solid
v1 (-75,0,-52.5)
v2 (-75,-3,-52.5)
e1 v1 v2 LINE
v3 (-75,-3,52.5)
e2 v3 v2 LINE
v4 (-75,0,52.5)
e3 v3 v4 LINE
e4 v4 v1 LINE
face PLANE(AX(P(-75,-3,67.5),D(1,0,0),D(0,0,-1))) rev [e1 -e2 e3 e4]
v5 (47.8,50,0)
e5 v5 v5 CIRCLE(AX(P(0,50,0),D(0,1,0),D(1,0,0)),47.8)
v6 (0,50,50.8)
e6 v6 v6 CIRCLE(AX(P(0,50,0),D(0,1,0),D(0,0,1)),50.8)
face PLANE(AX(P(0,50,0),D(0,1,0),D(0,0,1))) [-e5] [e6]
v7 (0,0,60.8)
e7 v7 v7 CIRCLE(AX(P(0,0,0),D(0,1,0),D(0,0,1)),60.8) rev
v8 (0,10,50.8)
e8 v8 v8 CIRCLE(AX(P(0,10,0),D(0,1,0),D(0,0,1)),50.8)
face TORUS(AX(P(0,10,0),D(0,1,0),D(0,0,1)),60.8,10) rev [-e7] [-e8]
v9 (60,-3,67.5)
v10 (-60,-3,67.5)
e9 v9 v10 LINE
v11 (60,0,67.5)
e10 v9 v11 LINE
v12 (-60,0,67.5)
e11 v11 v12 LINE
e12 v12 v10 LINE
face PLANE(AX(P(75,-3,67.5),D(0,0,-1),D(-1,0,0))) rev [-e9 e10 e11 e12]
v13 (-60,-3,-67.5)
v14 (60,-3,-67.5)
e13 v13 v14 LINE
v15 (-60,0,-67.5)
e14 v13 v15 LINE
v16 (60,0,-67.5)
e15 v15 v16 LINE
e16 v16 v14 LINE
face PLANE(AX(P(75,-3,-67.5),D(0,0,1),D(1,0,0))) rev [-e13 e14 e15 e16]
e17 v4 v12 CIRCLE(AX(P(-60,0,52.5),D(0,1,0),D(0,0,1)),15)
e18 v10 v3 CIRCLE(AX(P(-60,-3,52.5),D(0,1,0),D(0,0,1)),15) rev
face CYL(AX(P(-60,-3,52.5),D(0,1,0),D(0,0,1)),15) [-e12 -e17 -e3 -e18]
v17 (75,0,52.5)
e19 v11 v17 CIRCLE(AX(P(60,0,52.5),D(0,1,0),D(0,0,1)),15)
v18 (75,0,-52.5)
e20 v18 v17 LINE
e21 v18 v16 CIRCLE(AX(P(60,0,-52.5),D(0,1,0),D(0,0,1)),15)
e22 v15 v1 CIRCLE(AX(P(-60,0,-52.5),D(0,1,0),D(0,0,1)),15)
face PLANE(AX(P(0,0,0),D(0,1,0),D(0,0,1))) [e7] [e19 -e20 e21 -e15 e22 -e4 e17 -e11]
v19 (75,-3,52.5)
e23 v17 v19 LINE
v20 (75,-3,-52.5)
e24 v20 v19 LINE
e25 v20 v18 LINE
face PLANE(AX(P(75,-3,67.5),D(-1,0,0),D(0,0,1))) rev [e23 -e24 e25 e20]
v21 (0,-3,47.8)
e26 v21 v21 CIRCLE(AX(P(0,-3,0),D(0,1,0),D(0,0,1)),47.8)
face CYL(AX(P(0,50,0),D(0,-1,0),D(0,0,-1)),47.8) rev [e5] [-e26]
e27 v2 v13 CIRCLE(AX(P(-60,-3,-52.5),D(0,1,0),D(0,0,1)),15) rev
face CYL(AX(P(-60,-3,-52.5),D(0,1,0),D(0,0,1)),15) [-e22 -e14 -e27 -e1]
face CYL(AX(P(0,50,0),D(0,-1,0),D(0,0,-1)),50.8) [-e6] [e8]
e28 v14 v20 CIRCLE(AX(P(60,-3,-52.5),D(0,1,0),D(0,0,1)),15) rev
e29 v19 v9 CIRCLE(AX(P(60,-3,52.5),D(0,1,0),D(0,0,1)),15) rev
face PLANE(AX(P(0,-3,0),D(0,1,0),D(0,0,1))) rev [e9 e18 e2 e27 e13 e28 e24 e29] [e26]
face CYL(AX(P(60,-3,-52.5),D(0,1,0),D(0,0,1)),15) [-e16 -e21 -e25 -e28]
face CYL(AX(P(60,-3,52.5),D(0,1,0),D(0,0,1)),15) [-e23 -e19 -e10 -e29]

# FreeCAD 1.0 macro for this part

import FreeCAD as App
import Part
import Sketcher
from FreeCAD import Vector
Q = App.Units.Quantity


def edges_at(feature, points):
    """Names of the edges that pass closest to the given points."""
    edges = feature.Shape.Edges
    near = lambda p: min(range(len(edges)), key=lambda i: edges[i].distToShape(Part.Vertex(*p))[0])
    return sorted({f"Edge{near(p) + 1}" for p in points})

doc = App.newDocument("Part")
body = doc.addObject("PartDesign::Body", "Body")

sketch1 = body.newObject("Sketcher::SketchObject", "Sketch")
sketch1.AttachmentSupport = (doc.getObject("XZ_Plane"), [""])
sketch1.MapMode = "FlatFace"
sketch1.addGeometry([
    Part.Circle(Vector(0, 0, 0), Vector(0, 0, 1), 51),
    Part.Circle(Vector(0, 0, 0), Vector(0, 0, 1), 48),
], False)
sketch1.addConstraint([
    Sketcher.Constraint("Coincident", 0, 3, -1, 1),
    Sketcher.Constraint("Coincident", 1, 3, -1, 1),
    Sketcher.Constraint("Diameter", 0, Q("101.6 mm")),
    Sketcher.Constraint("Diameter", 1, Q("95.6 mm")),
])
pad1 = body.newObject("PartDesign::Pad", "Pad")
pad1.Profile = sketch1
pad1.Length = 50
pad1.Reversed = True

sketch2 = body.newObject("Sketcher::SketchObject", "Sketch001")
sketch2.AttachmentSupport = (doc.getObject("XZ_Plane"), [""])
sketch2.MapMode = "FlatFace"
sketch2.addGeometry([
    Part.LineSegment(Vector(-75, 68, 0), Vector(-75, -68, 0)),
    Part.LineSegment(Vector(-75, -68, 0), Vector(75, -68, 0)),
    Part.LineSegment(Vector(75, -68, 0), Vector(75, 68, 0)),
    Part.LineSegment(Vector(75, 68, 0), Vector(-75, 68, 0)),
], False)
sketch2.addConstraint([
    Sketcher.Constraint("Coincident", 0, 2, 1, 1),
    Sketcher.Constraint("Coincident", 1, 2, 2, 1),
    Sketcher.Constraint("Coincident", 2, 2, 3, 1),
    Sketcher.Constraint("Coincident", 3, 2, 0, 1),
    Sketcher.Constraint("Vertical", 0),
    Sketcher.Constraint("Horizontal", 1),
    Sketcher.Constraint("Vertical", 2),
    Sketcher.Constraint("Horizontal", 3),
    Sketcher.Constraint("Symmetric", 0, 2, 2, 2, -1, 1),
    Sketcher.Constraint("DistanceX", 1, 1, 1, 2, Q("150 mm")),
    Sketcher.Constraint("DistanceY", 0, 2, 0, 1, Q("135 mm")),
])
pad2 = body.newObject("PartDesign::Pad", "Pad001")
pad2.Profile = sketch2
pad2.Length = 3
doc.recompute()

fillet = body.newObject("PartDesign::Fillet", "Fillet")
fillet.Base = (pad2, edges_at(pad2, [(-50.8, 0, 0)]))
fillet.Radius = 10
doc.recompute()

fillet2 = body.newObject("PartDesign::Fillet", "Fillet001")
fillet2.Base = (fillet, edges_at(fillet, [
    (-75, -1.5, -67.5),
    (75, -1.5, -67.5),
    (75, -1.5, 67.5),
    (-75, -1.5, 67.5),
]))
fillet2.Radius = 15

sketch3 = body.newObject("Sketcher::SketchObject", "Sketch002")
sketch3.AttachmentSupport = (doc.getObject("XZ_Plane"), [""])
sketch3.MapMode = "FlatFace"
sketch3.addGeometry(Part.Circle(Vector(0, 0, 0), Vector(0, 0, 1), 48), False)
sketch3.addConstraint([
    Sketcher.Constraint("Coincident", 0, 3, -1, 1),
    Sketcher.Constraint("Diameter", 0, Q("95.6 mm")),
])
pocket1 = body.newObject("PartDesign::Pocket", "Pocket")
pocket1.Profile = sketch3
pocket1.Type = "ThroughAll"
pocket1.Reversed = True

doc.recompute()
